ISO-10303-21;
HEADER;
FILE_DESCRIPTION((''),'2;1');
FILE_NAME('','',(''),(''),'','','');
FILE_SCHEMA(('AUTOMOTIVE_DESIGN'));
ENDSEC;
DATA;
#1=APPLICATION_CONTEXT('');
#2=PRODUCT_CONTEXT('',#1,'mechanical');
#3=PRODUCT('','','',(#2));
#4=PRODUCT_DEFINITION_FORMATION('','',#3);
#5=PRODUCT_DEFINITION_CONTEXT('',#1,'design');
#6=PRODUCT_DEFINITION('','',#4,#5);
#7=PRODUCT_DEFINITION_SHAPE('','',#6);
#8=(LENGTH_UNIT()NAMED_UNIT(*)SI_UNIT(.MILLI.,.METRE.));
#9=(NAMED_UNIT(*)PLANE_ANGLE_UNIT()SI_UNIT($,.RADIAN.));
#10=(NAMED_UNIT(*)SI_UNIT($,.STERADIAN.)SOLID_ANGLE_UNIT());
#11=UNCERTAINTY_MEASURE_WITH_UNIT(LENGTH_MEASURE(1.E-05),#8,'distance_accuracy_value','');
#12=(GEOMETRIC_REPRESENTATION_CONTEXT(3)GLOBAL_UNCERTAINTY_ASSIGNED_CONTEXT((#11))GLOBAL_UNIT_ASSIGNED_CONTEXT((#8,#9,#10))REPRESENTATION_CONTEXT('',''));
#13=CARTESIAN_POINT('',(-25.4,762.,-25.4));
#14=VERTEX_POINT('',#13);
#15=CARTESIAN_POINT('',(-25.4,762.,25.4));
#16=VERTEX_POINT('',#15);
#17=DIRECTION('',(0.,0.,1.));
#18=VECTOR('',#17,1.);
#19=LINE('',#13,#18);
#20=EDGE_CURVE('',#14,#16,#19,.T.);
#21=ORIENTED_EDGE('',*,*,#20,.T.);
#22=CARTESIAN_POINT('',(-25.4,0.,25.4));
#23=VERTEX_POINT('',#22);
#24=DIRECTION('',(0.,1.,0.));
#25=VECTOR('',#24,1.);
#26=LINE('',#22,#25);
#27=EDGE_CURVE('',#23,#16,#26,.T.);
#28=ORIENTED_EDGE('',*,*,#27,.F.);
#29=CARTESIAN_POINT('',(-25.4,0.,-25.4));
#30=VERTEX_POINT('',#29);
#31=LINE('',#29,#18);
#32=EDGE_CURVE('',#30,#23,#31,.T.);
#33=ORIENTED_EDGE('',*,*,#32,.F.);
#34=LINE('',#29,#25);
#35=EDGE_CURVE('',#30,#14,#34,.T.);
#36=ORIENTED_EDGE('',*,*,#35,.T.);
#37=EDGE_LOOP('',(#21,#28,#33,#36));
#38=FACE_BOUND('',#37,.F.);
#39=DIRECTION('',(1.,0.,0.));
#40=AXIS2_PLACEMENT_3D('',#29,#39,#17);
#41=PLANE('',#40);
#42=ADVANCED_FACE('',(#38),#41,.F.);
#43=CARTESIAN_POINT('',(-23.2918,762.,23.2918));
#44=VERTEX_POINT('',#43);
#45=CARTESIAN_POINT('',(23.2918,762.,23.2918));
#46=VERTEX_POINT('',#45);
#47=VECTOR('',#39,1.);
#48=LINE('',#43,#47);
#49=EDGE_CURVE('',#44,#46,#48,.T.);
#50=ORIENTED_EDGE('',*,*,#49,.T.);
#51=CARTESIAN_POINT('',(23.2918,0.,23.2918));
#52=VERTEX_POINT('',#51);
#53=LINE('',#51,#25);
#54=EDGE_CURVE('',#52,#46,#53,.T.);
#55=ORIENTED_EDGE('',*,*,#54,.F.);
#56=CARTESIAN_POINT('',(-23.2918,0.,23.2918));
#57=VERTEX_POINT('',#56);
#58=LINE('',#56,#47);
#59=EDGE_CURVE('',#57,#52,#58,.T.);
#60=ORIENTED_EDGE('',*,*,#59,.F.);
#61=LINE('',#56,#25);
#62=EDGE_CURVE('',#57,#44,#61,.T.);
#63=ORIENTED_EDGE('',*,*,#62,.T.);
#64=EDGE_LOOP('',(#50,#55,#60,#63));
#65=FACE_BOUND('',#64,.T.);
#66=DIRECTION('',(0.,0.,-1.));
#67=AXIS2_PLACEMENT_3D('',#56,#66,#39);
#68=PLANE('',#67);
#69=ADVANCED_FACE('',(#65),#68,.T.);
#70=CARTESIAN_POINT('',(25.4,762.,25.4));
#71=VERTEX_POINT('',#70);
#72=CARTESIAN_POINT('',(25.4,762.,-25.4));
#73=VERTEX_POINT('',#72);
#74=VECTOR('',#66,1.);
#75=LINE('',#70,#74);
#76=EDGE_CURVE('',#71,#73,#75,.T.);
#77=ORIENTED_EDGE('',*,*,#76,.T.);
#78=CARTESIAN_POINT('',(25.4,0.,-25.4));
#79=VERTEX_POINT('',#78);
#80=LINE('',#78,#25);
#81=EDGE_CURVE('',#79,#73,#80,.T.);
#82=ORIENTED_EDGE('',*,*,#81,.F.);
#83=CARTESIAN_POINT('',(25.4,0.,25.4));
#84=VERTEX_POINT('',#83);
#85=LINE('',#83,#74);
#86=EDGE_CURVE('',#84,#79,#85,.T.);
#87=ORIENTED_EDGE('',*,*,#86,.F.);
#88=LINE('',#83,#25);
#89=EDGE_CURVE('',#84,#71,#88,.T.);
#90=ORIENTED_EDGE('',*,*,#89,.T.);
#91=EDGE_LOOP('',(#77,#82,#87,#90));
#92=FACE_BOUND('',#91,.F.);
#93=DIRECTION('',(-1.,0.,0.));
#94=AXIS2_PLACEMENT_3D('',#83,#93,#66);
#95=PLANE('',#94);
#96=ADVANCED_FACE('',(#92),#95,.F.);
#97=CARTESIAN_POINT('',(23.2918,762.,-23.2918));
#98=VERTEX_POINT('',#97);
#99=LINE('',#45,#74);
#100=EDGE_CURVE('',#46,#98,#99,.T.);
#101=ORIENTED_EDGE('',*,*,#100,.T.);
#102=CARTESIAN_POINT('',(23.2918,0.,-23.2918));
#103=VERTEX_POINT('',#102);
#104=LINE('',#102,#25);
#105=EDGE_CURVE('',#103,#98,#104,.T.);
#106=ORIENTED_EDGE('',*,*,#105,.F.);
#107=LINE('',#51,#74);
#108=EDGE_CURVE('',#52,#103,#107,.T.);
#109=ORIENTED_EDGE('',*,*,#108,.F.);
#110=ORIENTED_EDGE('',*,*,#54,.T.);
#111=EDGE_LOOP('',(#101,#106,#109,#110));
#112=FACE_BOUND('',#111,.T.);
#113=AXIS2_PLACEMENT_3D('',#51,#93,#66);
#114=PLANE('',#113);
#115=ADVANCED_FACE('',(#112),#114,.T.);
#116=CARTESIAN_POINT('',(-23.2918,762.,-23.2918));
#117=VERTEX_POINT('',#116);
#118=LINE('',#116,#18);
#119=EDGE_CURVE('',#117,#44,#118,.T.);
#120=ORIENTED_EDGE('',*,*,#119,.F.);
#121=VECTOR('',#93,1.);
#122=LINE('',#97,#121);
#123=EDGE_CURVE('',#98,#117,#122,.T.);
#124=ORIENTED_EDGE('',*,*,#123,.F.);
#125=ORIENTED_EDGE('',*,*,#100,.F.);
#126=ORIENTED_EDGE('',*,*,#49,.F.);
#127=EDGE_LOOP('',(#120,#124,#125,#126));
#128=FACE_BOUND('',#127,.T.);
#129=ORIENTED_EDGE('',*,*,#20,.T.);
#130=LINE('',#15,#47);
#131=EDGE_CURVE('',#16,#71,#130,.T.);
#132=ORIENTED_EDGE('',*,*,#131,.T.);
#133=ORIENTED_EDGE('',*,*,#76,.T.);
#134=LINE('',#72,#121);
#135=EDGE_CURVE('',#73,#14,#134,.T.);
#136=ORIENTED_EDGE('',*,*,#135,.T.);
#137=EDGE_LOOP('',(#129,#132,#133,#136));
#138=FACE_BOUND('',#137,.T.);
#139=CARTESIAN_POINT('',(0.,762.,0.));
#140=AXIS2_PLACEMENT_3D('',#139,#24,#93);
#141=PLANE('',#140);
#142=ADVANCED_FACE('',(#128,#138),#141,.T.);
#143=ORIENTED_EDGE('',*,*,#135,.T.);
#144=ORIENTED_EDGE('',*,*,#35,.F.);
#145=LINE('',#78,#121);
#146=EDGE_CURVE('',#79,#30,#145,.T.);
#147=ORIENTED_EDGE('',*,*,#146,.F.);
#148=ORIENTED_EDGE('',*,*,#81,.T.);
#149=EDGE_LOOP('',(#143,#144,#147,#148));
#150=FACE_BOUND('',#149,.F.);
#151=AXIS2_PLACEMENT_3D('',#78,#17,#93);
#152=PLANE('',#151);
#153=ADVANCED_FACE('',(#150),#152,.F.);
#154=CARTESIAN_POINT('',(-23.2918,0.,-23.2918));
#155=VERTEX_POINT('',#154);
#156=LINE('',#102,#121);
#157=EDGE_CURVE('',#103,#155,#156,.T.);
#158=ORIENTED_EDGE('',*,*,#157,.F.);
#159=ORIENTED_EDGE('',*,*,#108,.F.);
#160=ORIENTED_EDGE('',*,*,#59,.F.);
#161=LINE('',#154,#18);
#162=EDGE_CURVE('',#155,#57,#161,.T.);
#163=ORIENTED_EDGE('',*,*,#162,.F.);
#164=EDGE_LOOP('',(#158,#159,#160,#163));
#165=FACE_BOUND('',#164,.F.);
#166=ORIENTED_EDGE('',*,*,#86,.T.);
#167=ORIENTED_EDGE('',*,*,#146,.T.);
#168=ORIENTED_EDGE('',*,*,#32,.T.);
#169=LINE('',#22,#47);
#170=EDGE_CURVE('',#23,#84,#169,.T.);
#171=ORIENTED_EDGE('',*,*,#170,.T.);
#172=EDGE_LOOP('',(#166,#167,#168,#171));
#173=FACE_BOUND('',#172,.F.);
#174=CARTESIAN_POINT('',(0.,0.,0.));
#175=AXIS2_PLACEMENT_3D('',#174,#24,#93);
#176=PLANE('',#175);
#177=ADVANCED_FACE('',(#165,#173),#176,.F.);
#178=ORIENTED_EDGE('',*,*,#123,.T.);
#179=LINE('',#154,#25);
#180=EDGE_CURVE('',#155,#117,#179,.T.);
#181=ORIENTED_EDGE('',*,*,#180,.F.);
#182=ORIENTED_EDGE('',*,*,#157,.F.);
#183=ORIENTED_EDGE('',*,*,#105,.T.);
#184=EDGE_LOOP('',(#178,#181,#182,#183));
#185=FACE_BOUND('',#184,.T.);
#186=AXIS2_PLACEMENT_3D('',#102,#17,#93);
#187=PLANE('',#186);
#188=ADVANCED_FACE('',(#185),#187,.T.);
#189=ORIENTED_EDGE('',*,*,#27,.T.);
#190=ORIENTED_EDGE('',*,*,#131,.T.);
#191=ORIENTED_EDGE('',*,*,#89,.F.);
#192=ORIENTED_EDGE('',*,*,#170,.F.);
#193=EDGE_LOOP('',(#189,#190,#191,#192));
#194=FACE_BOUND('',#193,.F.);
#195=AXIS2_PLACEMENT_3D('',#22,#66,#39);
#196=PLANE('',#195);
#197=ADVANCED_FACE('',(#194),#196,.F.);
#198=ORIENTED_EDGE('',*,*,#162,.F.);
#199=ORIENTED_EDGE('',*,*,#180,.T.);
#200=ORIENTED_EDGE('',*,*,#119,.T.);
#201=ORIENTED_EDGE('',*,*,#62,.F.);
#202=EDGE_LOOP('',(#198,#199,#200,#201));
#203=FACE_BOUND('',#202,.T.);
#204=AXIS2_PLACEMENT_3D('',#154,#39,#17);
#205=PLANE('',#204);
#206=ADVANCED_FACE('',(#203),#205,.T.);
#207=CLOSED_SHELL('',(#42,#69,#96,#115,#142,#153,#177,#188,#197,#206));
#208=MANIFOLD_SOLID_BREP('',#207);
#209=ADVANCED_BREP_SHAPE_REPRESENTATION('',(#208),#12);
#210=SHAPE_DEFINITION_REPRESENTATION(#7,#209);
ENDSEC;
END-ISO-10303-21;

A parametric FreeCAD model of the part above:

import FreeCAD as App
import Part
import Sketcher

V = App.Vector
Q = App.Units.Quantity

doc = App.newDocument("Part")
body = doc.addObject("PartDesign::Body", "Body")

# Sketch on XZ plane
sketch1 = body.newObject("Sketcher::SketchObject", "Sketch")
sketch1.AttachmentSupport = (doc.getObject("XZ_Plane"), [""])
sketch1.MapMode = "FlatFace"
sketch1.addGeometry([
    Part.LineSegment(V(-25.4, -25.4, 0), V(-25.4, 25.4, 0)),  # 0
    Part.LineSegment(V(-25.4, 25.4, 0), V(25.4, 25.4, 0)),  # 1
    Part.LineSegment(V(25.4, 25.4, 0), V(25.4, -25.4, 0)),  # 2
    Part.LineSegment(V(25.4, -25.4, 0), V(-25.4, -25.4, 0)),  # 3
    Part.LineSegment(V(23.2918, 23.2918, 0), V(-23.2918, 23.2918, 0)),  # 4
    Part.LineSegment(V(-23.2918, 23.2918, 0), V(-23.2918, -23.2918, 0)),  # 5
    Part.LineSegment(V(-23.2918, -23.2918, 0), V(23.2918, -23.2918, 0)),  # 6
    Part.LineSegment(V(23.2918, -23.2918, 0), V(23.2918, 23.2918, 0)),  # 7
], False)
sketch1.addConstraint([
    Sketcher.Constraint("Coincident", 0, 2, 1, 1),
    Sketcher.Constraint("Coincident", 1, 2, 2, 1),
    Sketcher.Constraint("Coincident", 2, 2, 3, 1),
    Sketcher.Constraint("Coincident", 3, 2, 0, 1),
    Sketcher.Constraint("Coincident", 4, 2, 5, 1),
    Sketcher.Constraint("Coincident", 5, 2, 6, 1),
    Sketcher.Constraint("Coincident", 6, 2, 7, 1),
    Sketcher.Constraint("Coincident", 7, 2, 4, 1),
    Sketcher.Constraint("Vertical", 0),
    Sketcher.Constraint("Horizontal", 1),
    Sketcher.Constraint("Vertical", 2),
    Sketcher.Constraint("Horizontal", 3),
    Sketcher.Constraint("Horizontal", 4),
    Sketcher.Constraint("Vertical", 5),
    Sketcher.Constraint("Horizontal", 6),
    Sketcher.Constraint("Vertical", 7),
    Sketcher.Constraint("Symmetric", 0, 2, 2, 2, -1, 1),
    Sketcher.Constraint("Symmetric", 4, 2, 6, 2, -1, 1),
    Sketcher.Constraint("Equal", 3, 0),
    Sketcher.Constraint("Equal", 6, 5),
    Sketcher.Constraint("DistanceX", 1, 1, 1, 2, Q("2 in")),
    Sketcher.Constraint("DistanceX", 0, 2, 4, 2, Q("0.083 in")),
])
pad1 = body.newObject("PartDesign::Pad", "Pad")
pad1.Profile = sketch1
pad1.Length = Q("30 in")
pad1.Reversed = True

doc.recompute()
